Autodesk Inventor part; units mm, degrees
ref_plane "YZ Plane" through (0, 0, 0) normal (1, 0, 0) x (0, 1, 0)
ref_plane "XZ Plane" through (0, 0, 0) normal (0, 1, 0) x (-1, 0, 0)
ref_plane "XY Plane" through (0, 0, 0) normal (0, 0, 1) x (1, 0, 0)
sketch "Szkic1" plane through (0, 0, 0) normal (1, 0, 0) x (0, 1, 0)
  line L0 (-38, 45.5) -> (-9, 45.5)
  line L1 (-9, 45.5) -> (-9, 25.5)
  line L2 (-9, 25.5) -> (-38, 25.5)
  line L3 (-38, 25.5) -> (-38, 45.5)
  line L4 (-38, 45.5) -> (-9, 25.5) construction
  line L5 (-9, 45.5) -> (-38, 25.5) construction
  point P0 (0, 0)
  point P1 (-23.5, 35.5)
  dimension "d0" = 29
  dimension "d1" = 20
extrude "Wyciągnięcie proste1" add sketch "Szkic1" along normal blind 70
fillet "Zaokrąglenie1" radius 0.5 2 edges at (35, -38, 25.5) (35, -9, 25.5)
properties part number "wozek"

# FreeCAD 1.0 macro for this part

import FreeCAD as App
import Part
import Sketcher

V = App.Vector
Q = App.Units.Quantity


def edges_at(feature, points):
    """Names of the edges that pass closest to the given points."""
    edges = feature.Shape.Edges
    near = lambda p: min(range(len(edges)), key=lambda i: edges[i].distToShape(Part.Vertex(*p))[0])
    return sorted({f"Edge{near(p) + 1}" for p in points})

doc = App.newDocument("Part")
body = doc.addObject("PartDesign::Body", "Body")

sketch1 = body.newObject("Sketcher::SketchObject", "Sketch")
sketch1.AttachmentSupport = (doc.getObject("YZ_Plane"), [""])
sketch1.MapMode = "FlatFace"
sketch1.addGeometry([
    Part.LineSegment(V(-9, 46, 0), V(-38, 46, 0)),
    Part.LineSegment(V(-38, 46, 0), V(-38, 26, 0)),
    Part.LineSegment(V(-38, 26, 0), V(-9, 26, 0)),
    Part.LineSegment(V(-9, 26, 0), V(-9, 46, 0)),
], False)
sketch1.addConstraint([
    Sketcher.Constraint("Coincident", 0, 2, 1, 1),
    Sketcher.Constraint("Coincident", 1, 2, 2, 1),
    Sketcher.Constraint("Coincident", 2, 2, 3, 1),
    Sketcher.Constraint("Coincident", 3, 2, 0, 1),
    Sketcher.Constraint("Horizontal", 0),
    Sketcher.Constraint("Vertical", 1),
    Sketcher.Constraint("Horizontal", 2),
    Sketcher.Constraint("Vertical", 3),
    Sketcher.Constraint("DistanceX", 0, 2, 0, 1, Q("29 mm")),
    Sketcher.Constraint("DistanceY", 1, 2, 1, 1, Q("20 mm")),
    Sketcher.Constraint("DistanceX", 0, 2, -1, 1, Q("38 mm")),
    Sketcher.Constraint("DistanceY", -1, 1, 0, 2, Q("45.5 mm")),
])
pad1 = body.newObject("PartDesign::Pad", "Pad")
pad1.Profile = sketch1
pad1.Length = 70
doc.recompute()

fillet = body.newObject("PartDesign::Fillet", "Fillet")
fillet.Base = (pad1, edges_at(pad1, [(35, -38, 25.5), (35, -9, 25.5)]))
fillet.Radius = 0.5

doc.recompute()
